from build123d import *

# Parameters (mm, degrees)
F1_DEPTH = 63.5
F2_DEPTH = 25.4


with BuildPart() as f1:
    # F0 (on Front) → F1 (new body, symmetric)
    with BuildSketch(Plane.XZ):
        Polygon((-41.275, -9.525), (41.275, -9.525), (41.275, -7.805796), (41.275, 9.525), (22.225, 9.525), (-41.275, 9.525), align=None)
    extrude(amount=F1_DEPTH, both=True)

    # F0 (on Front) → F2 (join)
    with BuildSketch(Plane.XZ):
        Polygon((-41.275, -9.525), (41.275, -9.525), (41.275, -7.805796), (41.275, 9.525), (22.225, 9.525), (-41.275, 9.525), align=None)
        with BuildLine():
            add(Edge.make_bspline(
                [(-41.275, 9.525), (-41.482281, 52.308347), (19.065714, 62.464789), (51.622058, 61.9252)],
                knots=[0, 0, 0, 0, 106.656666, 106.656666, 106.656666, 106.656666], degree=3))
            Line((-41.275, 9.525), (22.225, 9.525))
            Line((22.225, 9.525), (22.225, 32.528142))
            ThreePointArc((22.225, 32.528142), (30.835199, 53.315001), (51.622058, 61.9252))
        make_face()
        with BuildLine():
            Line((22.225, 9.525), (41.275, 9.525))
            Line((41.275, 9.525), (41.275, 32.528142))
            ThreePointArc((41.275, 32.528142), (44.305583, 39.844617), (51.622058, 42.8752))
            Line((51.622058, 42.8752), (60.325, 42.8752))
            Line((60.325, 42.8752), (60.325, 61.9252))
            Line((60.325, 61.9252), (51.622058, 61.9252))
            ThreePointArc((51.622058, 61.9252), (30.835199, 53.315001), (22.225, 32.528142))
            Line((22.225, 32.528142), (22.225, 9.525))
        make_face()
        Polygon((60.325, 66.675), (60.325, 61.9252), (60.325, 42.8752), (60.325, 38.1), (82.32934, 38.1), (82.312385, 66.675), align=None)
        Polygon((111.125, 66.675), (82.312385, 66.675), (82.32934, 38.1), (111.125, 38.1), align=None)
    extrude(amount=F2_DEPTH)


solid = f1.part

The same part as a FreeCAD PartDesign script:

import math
import FreeCAD as App
import Part
import Sketcher

V = App.Vector
Q = App.Units.Quantity


def add_polygon(sketch, points):
    """Adds a closed chain of lines whose ends are joined by coincident constraints."""
    first, n = sketch.GeometryCount, len(points)
    for a, b in zip(points, points[1:] + points[:1]):
        sketch.addGeometry(Part.LineSegment(App.Vector(*a, 0), App.Vector(*b, 0)), False)
    for i in range(n):
        sketch.addConstraint(Sketcher.Constraint("Coincident", first + i, 2, first + (i + 1) % n, 1))

doc = App.newDocument("Part")
params = doc.addObject("Spreadsheet::Sheet", "Params")
for row, (alias, value) in enumerate([
    ("sketch1_width", "3.25 in"),
    ("sketch1_height", "0.75 in"),
    ("pad1_length", "5 in"),
    ("sketch2_width", "2 in"),
    ("sketch2_width2", "2 in"),
    ("sketch2_width3", "3.25 in"),
    ("sketch2_height", "0.75 in"),
    ("sketch2_height2", "0.188 in"),
    ("pad2_length", "1 in"),
], start=1):
    params.set(f"A{row}", alias)
    params.set(f"B{row}", "=" + value)
    params.setAlias(f"B{row}", alias)

body = doc.addObject("PartDesign::Body", "Body")

# Sketch on XZ plane
sketch1 = body.newObject("Sketcher::SketchObject", "Sketch")
sketch1.AttachmentSupport = (doc.getObject("XZ_Plane"), [""])
sketch1.MapMode = "FlatFace"
add_polygon(sketch1, [(-41, -10), (41, -10), (41, 10), (-41, 10)])  # lines 0-3
sketch1.addConstraint([
    Sketcher.Constraint("Horizontal", 0),
    Sketcher.Constraint("Vertical", 1),
    Sketcher.Constraint("Horizontal", 2),
    Sketcher.Constraint("Vertical", 3),
    Sketcher.Constraint("Symmetric", 0, 2, 2, 2, -1, 1),
    Sketcher.Constraint("DistanceX", 0, 1, 0, 2, Q("3.25 in")),
    Sketcher.Constraint("DistanceY", 1, 1, 1, 2, Q("0.75 in")),
])
sketch1.setExpression("Constraints[9]", "Params.sketch1_width")
sketch1.setExpression("Constraints[10]", "Params.sketch1_height")
pad1 = body.newObject("PartDesign::Pad", "Pad")
pad1.Profile = sketch1
pad1.setExpression("Length", "Params.pad1_length")
pad1.Midplane = True

# Sketch on XZ plane
sketch2 = body.newObject("Sketcher::SketchObject", "Sketch001")
sketch2.AttachmentSupport = (doc.getObject("XZ_Plane"), [""])
sketch2.MapMode = "FlatFace"
sketch2.addGeometry([
    Part.LineSegment(V(-41.275, -9.525, 0), V(41.275, -9.525, 0)),  # 0
    Part.LineSegment(V(41.275, -9.525, 0), V(41.275, 32.528142, 0)),  # 1
    Part.ArcOfCircle(Part.Circle(V(51.622058, 32.528142, 0), V(0, 0, 1), 10.347058), math.radians(89.999998), math.radians(180.000002)),  # 2
    Part.LineSegment(V(51.622058, 42.8752, 0), V(60.325, 42.8752, 0)),  # 3
    Part.LineSegment(V(60.325, 42.8752, 0), V(60.325, 38.1, 0)),  # 4
    Part.LineSegment(V(60.325, 38.1, 0), V(111.125, 38.1, 0)),  # 5
    Part.LineSegment(V(111.125, 38.1, 0), V(111.125, 66.675, 0)),  # 6
    Part.LineSegment(V(111.125, 66.675, 0), V(60.325, 66.675, 0)),  # 7
    Part.LineSegment(V(60.325, 66.675, 0), V(60.325, 61.9252, 0)),  # 8
    Part.LineSegment(V(60.325, 61.9252, 0), V(51.622058, 61.9252, 0)),  # 9
    Part.BSplineCurve([V(-41.275, 9.525, 0), V(-41.482281, 52.308347, 0), V(19.065714, 62.464789, 0), V(51.622058, 61.9252, 0)], [4, 4], [0, 106.656666], False, 3, [1, 1, 1, 1], False),  # 10
    Part.LineSegment(V(-41.275, 9.525, 0), V(-41.275, -9.525, 0)),  # 11
], False)
sketch2.addConstraint([
    Sketcher.Constraint("Block", 10),
    Sketcher.Constraint("Coincident", 0, 2, 1, 1),
    Sketcher.Constraint("Coincident", 1, 2, 2, 2),
    Sketcher.Constraint("Coincident", 2, 1, 3, 1),
    Sketcher.Constraint("Coincident", 3, 2, 4, 1),
    Sketcher.Constraint("Coincident", 4, 2, 5, 1),
    Sketcher.Constraint("Coincident", 5, 2, 6, 1),
    Sketcher.Constraint("Coincident", 6, 2, 7, 1),
    Sketcher.Constraint("Coincident", 7, 2, 8, 1),
    Sketcher.Constraint("Coincident", 8, 2, 9, 1),
    Sketcher.Constraint("Coincident", 9, 2, 10, 2),
    Sketcher.Constraint("Coincident", 10, 1, 11, 1),
    Sketcher.Constraint("Coincident", 11, 2, 0, 1),
    Sketcher.Constraint("Horizontal", 0),
    Sketcher.Constraint("Vertical", 1),
    Sketcher.Constraint("Horizontal", 3),
    Sketcher.Constraint("Vertical", 4),
    Sketcher.Constraint("Horizontal", 5),
    Sketcher.Constraint("Vertical", 6),
    Sketcher.Constraint("Horizontal", 7),
    Sketcher.Constraint("Vertical", 8),
    Sketcher.Constraint("Horizontal", 9),
    Sketcher.Constraint("Vertical", 11),
    Sketcher.Constraint("DistanceX", 5, 1, 5, 2, Q("2 in")),
    Sketcher.Constraint("DistanceX", 7, 2, 7, 1, Q("2 in")),
    Sketcher.Constraint("DistanceX", 11, 2, 4, 2, Q("4 in")),
    Sketcher.Constraint("DistanceX", 0, 1, 0, 2, Q("3.25 in")),
    Sketcher.Constraint("DistanceY", 11, 2, 11, 1, Q("0.75 in")),
    Sketcher.Constraint("DistanceY", -1, 1, 4, 2, Q("1.5 in")),
    Sketcher.Constraint("DistanceY", 4, 2, 4, 1, Q("0.188 in")),
    Sketcher.Constraint("DistanceY", 6, 1, 6, 2, Q("1.125 in")),
    Sketcher.Constraint("Radius", 2, Q("10.347058 mm")),
    Sketcher.Constraint("DistanceX", 3, 1, 3, 2, Q("8.702942 mm")),
    Sketcher.Constraint("DistanceY", 1, 1, 1, 2, Q("42.053142 mm")),
])
sketch2.setExpression("Constraints[23]", "Params.sketch2_width")
sketch2.setExpression("Constraints[24]", "Params.sketch2_width2")
sketch2.setExpression("Constraints[26]", "Params.sketch2_width3")
sketch2.setExpression("Constraints[27]", "Params.sketch2_height")
sketch2.setExpression("Constraints[29]", "Params.sketch2_height2")
pad2 = body.newObject("PartDesign::Pad", "Pad001")
pad2.Profile = sketch2
pad2.setExpression("Length", "Params.pad2_length")

doc.recompute()
